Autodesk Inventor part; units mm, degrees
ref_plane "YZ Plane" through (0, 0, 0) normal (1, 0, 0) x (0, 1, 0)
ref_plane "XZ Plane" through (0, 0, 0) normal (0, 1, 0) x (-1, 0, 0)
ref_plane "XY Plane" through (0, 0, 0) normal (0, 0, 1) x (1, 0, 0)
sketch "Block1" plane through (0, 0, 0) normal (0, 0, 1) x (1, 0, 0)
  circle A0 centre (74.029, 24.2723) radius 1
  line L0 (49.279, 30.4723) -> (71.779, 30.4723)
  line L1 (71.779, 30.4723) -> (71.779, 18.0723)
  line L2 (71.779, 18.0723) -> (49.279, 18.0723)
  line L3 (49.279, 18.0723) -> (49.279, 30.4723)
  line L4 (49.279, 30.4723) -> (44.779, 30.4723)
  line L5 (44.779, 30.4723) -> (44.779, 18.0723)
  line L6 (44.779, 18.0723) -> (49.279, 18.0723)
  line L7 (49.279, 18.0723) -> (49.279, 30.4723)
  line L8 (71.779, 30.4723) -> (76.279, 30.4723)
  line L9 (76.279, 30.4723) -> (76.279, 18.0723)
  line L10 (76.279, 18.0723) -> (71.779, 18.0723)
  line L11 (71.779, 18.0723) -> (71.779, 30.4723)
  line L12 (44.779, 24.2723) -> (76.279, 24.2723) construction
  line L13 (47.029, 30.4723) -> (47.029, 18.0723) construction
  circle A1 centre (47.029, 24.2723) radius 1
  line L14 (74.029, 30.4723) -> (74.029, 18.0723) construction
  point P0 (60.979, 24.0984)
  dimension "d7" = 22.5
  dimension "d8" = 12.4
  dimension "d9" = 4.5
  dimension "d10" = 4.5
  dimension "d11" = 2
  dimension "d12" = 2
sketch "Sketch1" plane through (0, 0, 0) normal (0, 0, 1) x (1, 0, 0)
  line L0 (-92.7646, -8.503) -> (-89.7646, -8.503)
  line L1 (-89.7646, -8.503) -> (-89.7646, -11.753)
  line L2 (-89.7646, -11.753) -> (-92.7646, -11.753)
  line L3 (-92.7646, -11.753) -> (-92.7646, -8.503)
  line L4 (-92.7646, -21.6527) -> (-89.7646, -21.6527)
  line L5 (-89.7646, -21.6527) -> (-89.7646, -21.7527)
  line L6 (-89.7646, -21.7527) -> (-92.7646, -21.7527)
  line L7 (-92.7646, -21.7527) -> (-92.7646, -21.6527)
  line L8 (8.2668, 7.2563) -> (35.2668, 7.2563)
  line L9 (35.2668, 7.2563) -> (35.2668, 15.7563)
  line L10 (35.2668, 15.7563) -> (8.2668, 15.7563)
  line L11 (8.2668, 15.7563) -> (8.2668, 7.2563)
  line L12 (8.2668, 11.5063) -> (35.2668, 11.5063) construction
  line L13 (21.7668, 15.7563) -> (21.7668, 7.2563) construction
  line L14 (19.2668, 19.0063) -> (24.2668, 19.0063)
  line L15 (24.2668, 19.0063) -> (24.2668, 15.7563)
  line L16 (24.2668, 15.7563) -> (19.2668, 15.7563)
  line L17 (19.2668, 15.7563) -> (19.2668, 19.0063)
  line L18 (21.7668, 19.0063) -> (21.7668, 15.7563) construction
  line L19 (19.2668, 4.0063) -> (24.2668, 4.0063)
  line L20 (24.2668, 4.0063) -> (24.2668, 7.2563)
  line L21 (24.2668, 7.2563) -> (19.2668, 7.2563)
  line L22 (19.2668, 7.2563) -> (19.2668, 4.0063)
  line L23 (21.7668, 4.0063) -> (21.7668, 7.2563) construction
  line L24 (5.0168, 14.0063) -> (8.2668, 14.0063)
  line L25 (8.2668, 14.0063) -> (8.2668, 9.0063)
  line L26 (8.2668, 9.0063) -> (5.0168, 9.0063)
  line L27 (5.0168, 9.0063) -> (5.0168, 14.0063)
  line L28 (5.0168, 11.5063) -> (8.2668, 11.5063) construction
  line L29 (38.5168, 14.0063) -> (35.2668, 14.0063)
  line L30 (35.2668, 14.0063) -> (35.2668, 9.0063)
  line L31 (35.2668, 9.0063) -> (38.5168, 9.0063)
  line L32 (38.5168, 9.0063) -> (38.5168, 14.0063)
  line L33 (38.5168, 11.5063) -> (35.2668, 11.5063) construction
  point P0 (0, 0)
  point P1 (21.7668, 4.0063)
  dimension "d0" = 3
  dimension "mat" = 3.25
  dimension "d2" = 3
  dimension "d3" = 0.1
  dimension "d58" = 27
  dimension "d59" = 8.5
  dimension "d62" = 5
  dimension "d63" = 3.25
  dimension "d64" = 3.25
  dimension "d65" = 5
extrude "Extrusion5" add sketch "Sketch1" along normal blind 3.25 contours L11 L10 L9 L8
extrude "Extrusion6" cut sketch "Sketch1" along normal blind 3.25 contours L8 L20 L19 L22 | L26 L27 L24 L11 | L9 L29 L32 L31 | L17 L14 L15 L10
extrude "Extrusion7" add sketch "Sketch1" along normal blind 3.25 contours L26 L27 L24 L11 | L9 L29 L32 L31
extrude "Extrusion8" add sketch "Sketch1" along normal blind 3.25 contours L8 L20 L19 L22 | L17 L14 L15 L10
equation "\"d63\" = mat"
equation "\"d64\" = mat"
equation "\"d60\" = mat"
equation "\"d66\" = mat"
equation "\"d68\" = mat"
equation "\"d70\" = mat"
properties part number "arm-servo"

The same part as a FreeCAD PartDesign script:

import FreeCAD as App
import Part
import Sketcher

V = App.Vector
Q = App.Units.Quantity


def add_polygon(sketch, points):
    """Adds a closed chain of lines whose ends are joined by coincident constraints."""
    first, n = sketch.GeometryCount, len(points)
    for a, b in zip(points, points[1:] + points[:1]):
        sketch.addGeometry(Part.LineSegment(App.Vector(*a, 0), App.Vector(*b, 0)), False)
    for i in range(n):
        sketch.addConstraint(Sketcher.Constraint("Coincident", first + i, 2, first + (i + 1) % n, 1))

doc = App.newDocument("Part")
body = doc.addObject("PartDesign::Body", "Body")

# Sketch on XY plane
sketch1 = body.newObject("Sketcher::SketchObject", "Sketch")
sketch1.AttachmentSupport = (doc.getObject("XY_Plane"), [""])
sketch1.MapMode = "FlatFace"
add_polygon(sketch1, [(8.2668, 15.7563), (8.2668, 7.2563), (35.2668, 7.2563), (35.2668, 15.7563)])  # lines 0-3
sketch1.addConstraint([
    Sketcher.Constraint("Vertical", 0),
    Sketcher.Constraint("Horizontal", 1),
    Sketcher.Constraint("Vertical", 2),
    Sketcher.Constraint("Horizontal", 3),
    Sketcher.Constraint("DistanceX", 1, 1, 1, 2, Q("27 mm")),
    Sketcher.Constraint("DistanceY", 0, 2, 0, 1, Q("8.5 mm")),
    Sketcher.Constraint("DistanceX", -1, 1, 0, 2, Q("8.2668 mm")),
    Sketcher.Constraint("DistanceY", -1, 1, 0, 2, Q("7.2563 mm")),
])
pad1 = body.newObject("PartDesign::Pad", "Pad")
pad1.Profile = sketch1
pad1.Length = 3.25

# Sketch on XY plane
sketch2 = body.newObject("Sketcher::SketchObject", "Sketch001")
sketch2.AttachmentSupport = (doc.getObject("XY_Plane"), [""])
sketch2.MapMode = "FlatFace"
add_polygon(sketch2, [(24.2668, 7.2563), (19.2668, 7.2563), (19.2668, 4.0063), (24.2668, 4.0063)])  # lines 0-3
add_polygon(sketch2, [(5.0168, 9.0063), (8.2668, 9.0063), (8.2668, 14.0063), (5.0168, 14.0063)])  # lines 4-7
add_polygon(sketch2, [(35.2668, 14.0063), (35.2668, 9.0063), (38.5168, 9.0063), (38.5168, 14.0063)])  # lines 8-11
add_polygon(sketch2, [(19.2668, 19.0063), (19.2668, 15.7563), (24.2668, 15.7563), (24.2668, 19.0063)])  # lines 12-15
sketch2.addConstraint([
    Sketcher.Constraint("Horizontal", 0),
    Sketcher.Constraint("Vertical", 1),
    Sketcher.Constraint("Horizontal", 2),
    Sketcher.Constraint("Vertical", 3),
    Sketcher.Constraint("Horizontal", 4),
    Sketcher.Constraint("Vertical", 5),
    Sketcher.Constraint("Horizontal", 6),
    Sketcher.Constraint("Vertical", 7),
    Sketcher.Constraint("Vertical", 8),
    Sketcher.Constraint("Horizontal", 9),
    Sketcher.Constraint("Vertical", 10),
    Sketcher.Constraint("Horizontal", 11),
    Sketcher.Constraint("Vertical", 12),
    Sketcher.Constraint("Horizontal", 13),
    Sketcher.Constraint("Vertical", 14),
    Sketcher.Constraint("Horizontal", 15),
    Sketcher.Constraint("Horizontal", 7, 2, 8, 2),
    Sketcher.Constraint("Horizontal", 6, 2, 10, 2),
    Sketcher.Constraint("Vertical", 1, 2, 12, 2),
    Sketcher.Constraint("Vertical", 3, 2, 13, 2),
    Sketcher.Constraint("Equal", 6, 9),
    Sketcher.Constraint("Equal", 11, 1),
    Sketcher.Constraint("Equal", 15, 5),
    Sketcher.Constraint("Equal", 3, 12),
    Sketcher.Constraint("DistanceX", 0, 2, 0, 1, Q("5 mm")),
    Sketcher.Constraint("DistanceY", 1, 2, 4, 2, Q("5 mm")),
    Sketcher.Constraint("DistanceX", 4, 2, 8, 2, Q("27 mm")),
    Sketcher.Constraint("DistanceY", 11, 2, 14, 2, Q("5 mm")),
    Sketcher.Constraint("DistanceX", 4, 1, 4, 2, Q("3.25 mm")),
    Sketcher.Constraint("DistanceX", 4, 2, 0, 2, Q("11 mm")),
    Sketcher.Constraint("DistanceX", -1, 1, 0, 2, Q("19.2668 mm")),
    Sketcher.Constraint("DistanceY", -1, 1, 0, 2, Q("7.2563 mm")),
])
pocket1 = body.newObject("PartDesign::Pocket", "Pocket")
pocket1.Profile = sketch2
pocket1.Length = 3.25
pocket1.Reversed = True

# Sketch on XY plane
sketch3 = body.newObject("Sketcher::SketchObject", "Sketch002")
sketch3.AttachmentSupport = (doc.getObject("XY_Plane"), [""])
sketch3.MapMode = "FlatFace"
add_polygon(sketch3, [(5.0168, 9.0063), (8.2668, 9.0063), (8.2668, 14.0063), (5.0168, 14.0063)])  # lines 0-3
add_polygon(sketch3, [(35.2668, 14.0063), (35.2668, 9.0063), (38.5168, 9.0063), (38.5168, 14.0063)])  # lines 4-7
sketch3.addConstraint([
    Sketcher.Constraint("Horizontal", 0),
    Sketcher.Constraint("Vertical", 1),
    Sketcher.Constraint("Horizontal", 2),
    Sketcher.Constraint("Vertical", 3),
    Sketcher.Constraint("Vertical", 4),
    Sketcher.Constraint("Horizontal", 5),
    Sketcher.Constraint("Vertical", 6),
    Sketcher.Constraint("Horizontal", 7),
    Sketcher.Constraint("Horizontal", 3, 2, 4, 2),
    Sketcher.Constraint("Horizontal", 2, 2, 6, 2),
    Sketcher.Constraint("Equal", 2, 5),
    Sketcher.Constraint("DistanceY", 1, 1, 1, 2, Q("5 mm")),
    Sketcher.Constraint("DistanceX", 0, 2, 4, 2, Q("27 mm")),
    Sketcher.Constraint("DistanceX", 0, 1, 0, 2, Q("3.25 mm")),
    Sketcher.Constraint("DistanceX", -1, 1, 0, 2, Q("8.2668 mm")),
    Sketcher.Constraint("DistanceY", -1, 1, 0, 2, Q("9.0063 mm")),
])
pad2 = body.newObject("PartDesign::Pad", "Pad001")
pad2.Profile = sketch3
pad2.Length = 3.25

# Sketch on XY plane
sketch4 = body.newObject("Sketcher::SketchObject", "Sketch003")
sketch4.AttachmentSupport = (doc.getObject("XY_Plane"), [""])
sketch4.MapMode = "FlatFace"
add_polygon(sketch4, [(24.2668, 7.2563), (19.2668, 7.2563), (19.2668, 4.0063), (24.2668, 4.0063)])  # lines 0-3
add_polygon(sketch4, [(19.2668, 19.0063), (19.2668, 15.7563), (24.2668, 15.7563), (24.2668, 19.0063)])  # lines 4-7
sketch4.addConstraint([
    Sketcher.Constraint("Horizontal", 0),
    Sketcher.Constraint("Vertical", 1),
    Sketcher.Constraint("Horizontal", 2),
    Sketcher.Constraint("Vertical", 3),
    Sketcher.Constraint("Vertical", 4),
    Sketcher.Constraint("Horizontal", 5),
    Sketcher.Constraint("Vertical", 6),
    Sketcher.Constraint("Horizontal", 7),
    Sketcher.Constraint("Vertical", 1, 2, 4, 2),
    Sketcher.Constraint("Vertical", 3, 2, 5, 2),
    Sketcher.Constraint("Equal", 3, 4),
    Sketcher.Constraint("DistanceX", 0, 2, 0, 1, Q("5 mm")),
    Sketcher.Constraint("DistanceY", 1, 2, 1, 1, Q("3.25 mm")),
    Sketcher.Constraint("DistanceY", 0, 2, 4, 2, Q("8.5 mm")),
    Sketcher.Constraint("DistanceX", -1, 1, 0, 2, Q("19.2668 mm")),
    Sketcher.Constraint("DistanceY", -1, 1, 0, 2, Q("7.2563 mm")),
])
pad3 = body.newObject("PartDesign::Pad", "Pad002")
pad3.Profile = sketch4
pad3.Length = 3.25

doc.recompute()
